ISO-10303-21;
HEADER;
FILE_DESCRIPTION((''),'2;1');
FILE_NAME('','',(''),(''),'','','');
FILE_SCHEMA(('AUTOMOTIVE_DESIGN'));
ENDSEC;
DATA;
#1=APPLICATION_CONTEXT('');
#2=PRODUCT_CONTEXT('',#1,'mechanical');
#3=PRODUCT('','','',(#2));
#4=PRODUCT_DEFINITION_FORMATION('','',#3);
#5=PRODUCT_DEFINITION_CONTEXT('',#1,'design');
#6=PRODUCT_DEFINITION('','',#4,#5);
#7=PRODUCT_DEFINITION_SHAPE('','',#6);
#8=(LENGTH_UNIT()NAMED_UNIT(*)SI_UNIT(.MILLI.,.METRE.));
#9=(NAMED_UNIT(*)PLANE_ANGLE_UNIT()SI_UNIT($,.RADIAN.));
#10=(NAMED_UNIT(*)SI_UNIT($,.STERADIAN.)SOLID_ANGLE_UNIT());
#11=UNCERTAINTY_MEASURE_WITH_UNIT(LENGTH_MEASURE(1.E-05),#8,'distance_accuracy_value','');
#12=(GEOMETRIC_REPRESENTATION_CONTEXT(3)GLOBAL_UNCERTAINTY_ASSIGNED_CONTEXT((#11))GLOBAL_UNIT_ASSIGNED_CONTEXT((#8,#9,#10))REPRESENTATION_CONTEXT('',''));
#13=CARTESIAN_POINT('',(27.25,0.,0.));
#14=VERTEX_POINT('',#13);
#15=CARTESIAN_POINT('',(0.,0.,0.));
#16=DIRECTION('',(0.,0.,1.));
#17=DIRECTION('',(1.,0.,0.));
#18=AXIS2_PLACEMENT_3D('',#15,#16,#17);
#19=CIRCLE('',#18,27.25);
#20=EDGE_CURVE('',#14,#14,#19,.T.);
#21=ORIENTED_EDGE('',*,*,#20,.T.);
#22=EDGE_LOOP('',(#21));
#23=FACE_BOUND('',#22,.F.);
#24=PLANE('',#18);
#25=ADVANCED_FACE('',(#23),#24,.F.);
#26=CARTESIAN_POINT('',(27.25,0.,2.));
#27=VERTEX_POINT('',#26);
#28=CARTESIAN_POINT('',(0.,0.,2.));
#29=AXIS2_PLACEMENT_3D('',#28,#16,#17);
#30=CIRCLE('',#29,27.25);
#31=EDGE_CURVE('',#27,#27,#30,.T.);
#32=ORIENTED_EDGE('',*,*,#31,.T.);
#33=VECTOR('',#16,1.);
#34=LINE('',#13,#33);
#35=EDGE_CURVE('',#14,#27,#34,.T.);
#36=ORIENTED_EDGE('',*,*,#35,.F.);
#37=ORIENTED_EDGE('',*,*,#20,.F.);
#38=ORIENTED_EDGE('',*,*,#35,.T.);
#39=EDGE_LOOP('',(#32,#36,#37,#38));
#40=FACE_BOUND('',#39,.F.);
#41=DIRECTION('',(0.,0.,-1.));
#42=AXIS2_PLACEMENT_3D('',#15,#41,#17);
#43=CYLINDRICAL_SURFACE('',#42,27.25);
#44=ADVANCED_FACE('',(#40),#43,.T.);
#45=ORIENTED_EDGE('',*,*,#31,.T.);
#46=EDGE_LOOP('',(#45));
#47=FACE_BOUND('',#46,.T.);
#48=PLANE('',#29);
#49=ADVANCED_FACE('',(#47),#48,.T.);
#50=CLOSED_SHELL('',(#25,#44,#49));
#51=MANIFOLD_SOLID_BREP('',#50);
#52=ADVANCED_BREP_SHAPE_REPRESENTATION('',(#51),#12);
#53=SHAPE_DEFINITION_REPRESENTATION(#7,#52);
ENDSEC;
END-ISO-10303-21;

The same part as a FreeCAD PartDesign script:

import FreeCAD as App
import Part
import Sketcher
Q = App.Units.Quantity

doc = App.newDocument("Part")
body = doc.addObject("PartDesign::Body", "Body")

sketch1 = body.newObject("Sketcher::SketchObject", "Sketch")
sketch1.AttachmentSupport = (doc.getObject("XY_Plane"), [""])
sketch1.MapMode = "FlatFace"
sketch1.addGeometry(Part.Circle(App.Vector(0, 0, 0), App.Vector(0, 0, 1), 27.25), False)
sketch1.addConstraint(Sketcher.Constraint("Coincident", 0, 3, -1, 1))
sketch1.addConstraint(Sketcher.Constraint("Diameter", 0, Q("54.5 mm")))
pad1 = body.newObject("PartDesign::Pad", "Pad")
pad1.Profile = sketch1
pad1.Length = 2

doc.recompute()
